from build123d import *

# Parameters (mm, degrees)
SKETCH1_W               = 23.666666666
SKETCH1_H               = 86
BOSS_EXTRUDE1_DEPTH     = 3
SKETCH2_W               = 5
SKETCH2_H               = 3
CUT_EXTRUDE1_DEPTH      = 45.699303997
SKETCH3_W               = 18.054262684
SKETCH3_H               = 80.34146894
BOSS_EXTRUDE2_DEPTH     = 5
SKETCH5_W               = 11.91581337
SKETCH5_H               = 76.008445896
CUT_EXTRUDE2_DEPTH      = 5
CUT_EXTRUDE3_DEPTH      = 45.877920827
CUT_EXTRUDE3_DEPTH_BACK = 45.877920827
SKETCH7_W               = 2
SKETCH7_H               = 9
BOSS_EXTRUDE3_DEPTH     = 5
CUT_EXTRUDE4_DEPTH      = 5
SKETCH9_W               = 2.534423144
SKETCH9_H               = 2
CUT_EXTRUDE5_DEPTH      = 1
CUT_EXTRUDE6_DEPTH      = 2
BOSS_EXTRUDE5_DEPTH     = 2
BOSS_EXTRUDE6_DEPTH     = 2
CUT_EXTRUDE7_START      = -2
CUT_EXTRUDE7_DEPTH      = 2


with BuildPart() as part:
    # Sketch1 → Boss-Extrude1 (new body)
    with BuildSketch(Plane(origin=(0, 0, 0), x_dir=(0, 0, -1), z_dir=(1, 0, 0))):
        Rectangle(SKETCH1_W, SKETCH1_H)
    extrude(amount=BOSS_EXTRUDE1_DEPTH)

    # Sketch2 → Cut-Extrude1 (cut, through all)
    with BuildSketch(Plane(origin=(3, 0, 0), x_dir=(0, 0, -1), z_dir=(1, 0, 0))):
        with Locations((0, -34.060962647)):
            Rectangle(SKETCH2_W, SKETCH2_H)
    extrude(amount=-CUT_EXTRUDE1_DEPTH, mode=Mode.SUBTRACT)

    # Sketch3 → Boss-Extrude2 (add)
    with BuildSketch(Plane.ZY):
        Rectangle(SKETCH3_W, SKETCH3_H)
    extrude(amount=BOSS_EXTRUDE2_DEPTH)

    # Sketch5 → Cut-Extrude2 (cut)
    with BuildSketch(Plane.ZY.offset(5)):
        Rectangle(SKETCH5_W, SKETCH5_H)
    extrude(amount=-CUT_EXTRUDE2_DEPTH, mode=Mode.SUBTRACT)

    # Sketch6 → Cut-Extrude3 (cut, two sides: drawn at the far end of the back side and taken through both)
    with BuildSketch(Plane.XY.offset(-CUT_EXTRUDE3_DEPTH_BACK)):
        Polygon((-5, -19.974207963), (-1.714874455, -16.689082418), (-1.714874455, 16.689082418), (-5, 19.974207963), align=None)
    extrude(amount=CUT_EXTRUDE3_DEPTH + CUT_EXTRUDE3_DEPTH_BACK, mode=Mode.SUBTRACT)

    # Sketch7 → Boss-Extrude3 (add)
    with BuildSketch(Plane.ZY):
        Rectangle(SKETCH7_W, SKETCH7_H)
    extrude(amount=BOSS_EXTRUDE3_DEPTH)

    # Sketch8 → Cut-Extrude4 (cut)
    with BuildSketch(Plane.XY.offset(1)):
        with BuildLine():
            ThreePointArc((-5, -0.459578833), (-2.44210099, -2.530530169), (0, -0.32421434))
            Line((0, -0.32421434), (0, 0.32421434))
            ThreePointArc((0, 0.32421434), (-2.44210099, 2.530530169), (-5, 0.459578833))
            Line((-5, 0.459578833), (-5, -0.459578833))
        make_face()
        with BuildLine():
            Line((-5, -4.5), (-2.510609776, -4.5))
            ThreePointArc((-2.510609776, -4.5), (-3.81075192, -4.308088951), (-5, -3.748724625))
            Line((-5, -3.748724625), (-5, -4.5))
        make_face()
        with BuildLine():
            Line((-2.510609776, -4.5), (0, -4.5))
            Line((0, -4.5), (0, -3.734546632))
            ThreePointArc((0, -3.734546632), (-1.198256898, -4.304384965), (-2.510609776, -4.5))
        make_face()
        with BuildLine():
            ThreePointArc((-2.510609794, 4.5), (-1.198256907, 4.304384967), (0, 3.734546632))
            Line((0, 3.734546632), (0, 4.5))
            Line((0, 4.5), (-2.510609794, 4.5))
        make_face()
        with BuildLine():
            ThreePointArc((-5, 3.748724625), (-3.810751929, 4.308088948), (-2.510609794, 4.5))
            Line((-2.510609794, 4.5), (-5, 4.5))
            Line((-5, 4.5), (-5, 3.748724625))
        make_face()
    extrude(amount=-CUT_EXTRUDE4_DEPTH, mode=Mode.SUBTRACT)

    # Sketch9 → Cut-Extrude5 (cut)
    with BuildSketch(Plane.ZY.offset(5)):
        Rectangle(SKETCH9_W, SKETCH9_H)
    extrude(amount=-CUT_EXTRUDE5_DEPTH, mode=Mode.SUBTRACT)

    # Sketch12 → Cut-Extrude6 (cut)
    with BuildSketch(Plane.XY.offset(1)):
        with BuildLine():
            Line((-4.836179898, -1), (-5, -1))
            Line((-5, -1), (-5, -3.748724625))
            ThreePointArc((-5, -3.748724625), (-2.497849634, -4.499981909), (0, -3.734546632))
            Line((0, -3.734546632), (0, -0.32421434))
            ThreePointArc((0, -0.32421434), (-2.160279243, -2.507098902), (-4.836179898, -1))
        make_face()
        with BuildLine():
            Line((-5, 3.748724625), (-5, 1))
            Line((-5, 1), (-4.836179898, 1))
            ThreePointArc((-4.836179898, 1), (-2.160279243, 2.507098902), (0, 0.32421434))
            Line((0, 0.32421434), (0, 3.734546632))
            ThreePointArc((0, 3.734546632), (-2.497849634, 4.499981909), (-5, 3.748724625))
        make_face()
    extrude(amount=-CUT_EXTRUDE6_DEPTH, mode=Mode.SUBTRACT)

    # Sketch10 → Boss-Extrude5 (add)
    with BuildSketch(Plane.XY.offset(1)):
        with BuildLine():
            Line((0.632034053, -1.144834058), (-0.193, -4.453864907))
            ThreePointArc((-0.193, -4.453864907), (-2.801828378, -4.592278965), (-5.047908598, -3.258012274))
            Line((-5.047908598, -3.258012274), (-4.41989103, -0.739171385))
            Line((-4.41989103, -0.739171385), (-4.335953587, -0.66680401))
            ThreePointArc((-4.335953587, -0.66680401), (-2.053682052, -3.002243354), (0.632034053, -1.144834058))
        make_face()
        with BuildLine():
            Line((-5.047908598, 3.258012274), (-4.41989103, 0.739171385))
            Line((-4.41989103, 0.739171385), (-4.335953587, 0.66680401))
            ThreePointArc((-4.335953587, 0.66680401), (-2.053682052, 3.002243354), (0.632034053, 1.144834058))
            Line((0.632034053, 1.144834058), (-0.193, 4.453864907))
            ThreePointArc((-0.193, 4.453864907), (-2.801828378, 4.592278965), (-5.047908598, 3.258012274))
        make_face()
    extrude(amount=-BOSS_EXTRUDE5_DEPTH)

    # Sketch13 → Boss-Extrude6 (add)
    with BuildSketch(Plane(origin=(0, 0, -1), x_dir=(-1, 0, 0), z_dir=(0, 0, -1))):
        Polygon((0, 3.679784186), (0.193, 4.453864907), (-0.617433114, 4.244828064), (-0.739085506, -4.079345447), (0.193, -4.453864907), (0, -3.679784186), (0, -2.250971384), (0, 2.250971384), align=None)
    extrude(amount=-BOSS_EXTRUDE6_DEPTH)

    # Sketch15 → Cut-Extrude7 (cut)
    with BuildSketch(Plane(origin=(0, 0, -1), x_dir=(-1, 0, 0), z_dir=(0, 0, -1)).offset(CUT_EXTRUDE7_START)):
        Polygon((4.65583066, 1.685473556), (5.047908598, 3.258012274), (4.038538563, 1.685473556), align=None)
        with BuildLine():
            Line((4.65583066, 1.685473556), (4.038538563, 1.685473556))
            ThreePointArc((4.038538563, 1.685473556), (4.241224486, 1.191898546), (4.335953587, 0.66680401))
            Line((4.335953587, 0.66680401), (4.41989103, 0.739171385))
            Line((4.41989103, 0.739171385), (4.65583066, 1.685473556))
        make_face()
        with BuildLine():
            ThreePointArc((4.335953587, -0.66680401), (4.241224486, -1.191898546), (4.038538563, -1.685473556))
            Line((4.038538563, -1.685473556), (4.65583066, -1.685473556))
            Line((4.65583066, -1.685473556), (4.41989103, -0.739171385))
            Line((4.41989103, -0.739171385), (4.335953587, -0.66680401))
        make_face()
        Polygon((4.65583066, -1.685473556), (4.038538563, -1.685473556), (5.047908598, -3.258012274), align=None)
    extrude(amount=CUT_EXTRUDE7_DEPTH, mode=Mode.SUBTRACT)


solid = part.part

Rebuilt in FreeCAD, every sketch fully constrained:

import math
import FreeCAD as App
import Part
import Sketcher

V = App.Vector
Q = App.Units.Quantity


def add_polygon(sketch, points):
    """Adds a closed chain of lines whose ends are joined by coincident constraints."""
    first, n = sketch.GeometryCount, len(points)
    for a, b in zip(points, points[1:] + points[:1]):
        sketch.addGeometry(Part.LineSegment(App.Vector(*a, 0), App.Vector(*b, 0)), False)
    for i in range(n):
        sketch.addConstraint(Sketcher.Constraint("Coincident", first + i, 2, first + (i + 1) % n, 1))

doc = App.newDocument("Part")
body = doc.addObject("PartDesign::Body", "Body")

sketch1 = doc.addObject("Sketcher::SketchObject", "Sketch")
body.addObject(sketch1)
sketch1.AttachmentSupport = (doc.YZ_Plane, [""])
sketch1.MapMode = "FlatFace"
add_polygon(sketch1, [(43, 12), (-43, 12), (-43, -12), (43, -12)])
sketch1.addConstraint([
    Sketcher.Constraint("Horizontal", 0),
    Sketcher.Constraint("Vertical", 1),
    Sketcher.Constraint("Horizontal", 2),
    Sketcher.Constraint("Vertical", 3),
    Sketcher.Constraint("Symmetric", 0, 2, 2, 2, -1, 1),
    Sketcher.Constraint("DistanceX", 0, 2, 0, 1, 86.0),
    Sketcher.Constraint("DistanceY", 1, 2, 1, 1, 23.666667),
])
pad1 = doc.addObject("PartDesign::Pad", "Pad")
body.addObject(pad1)
pad1.Profile = sketch1
pad1.Length = 3

sketch2 = doc.addObject("Sketcher::SketchObject", "Sketch001")
body.addObject(sketch2)
sketch2.AttachmentSupport = (doc.YZ_Plane, [""])
sketch2.MapMode = "FlatFace"
sketch2.AttachmentOffset = App.Placement(V(0, 0, 3), App.Rotation())
add_polygon(sketch2, [(-32.6, 2.5), (-35.6, 2.5), (-35.6, -2.5), (-32.6, -2.5)])
sketch2.addConstraint([
    Sketcher.Constraint("Horizontal", 0),
    Sketcher.Constraint("Vertical", 1),
    Sketcher.Constraint("Horizontal", 2),
    Sketcher.Constraint("Vertical", 3),
    Sketcher.Constraint("DistanceX", 0, 2, 0, 1, 3.0),
    Sketcher.Constraint("DistanceY", 1, 2, 1, 1, 5.0),
    Sketcher.Constraint("DistanceY", -1, 1, 0, 2, 2.5),
    Sketcher.Constraint("DistanceX", 0, 2, -1, 1, 35.560963),
])
pocket1 = doc.addObject("PartDesign::Pocket", "Pocket")
body.addObject(pocket1)
pocket1.Profile = sketch2
pocket1.Type = "ThroughAll"

sketch3 = doc.addObject("Sketcher::SketchObject", "Sketch002")
body.addObject(sketch3)
sketch3.AttachmentSupport = (doc.YZ_Plane, [""])
sketch3.MapMode = "FlatFace"
add_polygon(sketch3, [(40, -9), (-40, -9), (-40, 9), (40, 9)])
sketch3.addConstraint([
    Sketcher.Constraint("Horizontal", 0),
    Sketcher.Constraint("Vertical", 1),
    Sketcher.Constraint("Horizontal", 2),
    Sketcher.Constraint("Vertical", 3),
    Sketcher.Constraint("Symmetric", 0, 2, 2, 2, -1, 1),
    Sketcher.Constraint("DistanceX", 0, 2, 0, 1, 80.341469),
    Sketcher.Constraint("DistanceY", 1, 1, 1, 2, 18.054263),
])
pad2 = doc.addObject("PartDesign::Pad", "Pad001")
body.addObject(pad2)
pad2.Profile = sketch3
pad2.Length = 5
pad2.Reversed = True

sketch4 = doc.addObject("Sketcher::SketchObject", "Sketch003")
body.addObject(sketch4)
sketch4.AttachmentSupport = (doc.YZ_Plane, [""])
sketch4.MapMode = "FlatFace"
sketch4.AttachmentOffset = App.Placement(V(0, 0, -5), App.Rotation())
add_polygon(sketch4, [(38, -6), (-38, -6), (-38, 6), (38, 6)])
sketch4.addConstraint([
    Sketcher.Constraint("Horizontal", 0),
    Sketcher.Constraint("Vertical", 1),
    Sketcher.Constraint("Horizontal", 2),
    Sketcher.Constraint("Vertical", 3),
    Sketcher.Constraint("Symmetric", 0, 2, 2, 2, -1, 1),
    Sketcher.Constraint("DistanceX", 0, 2, 0, 1, 76.008446),
    Sketcher.Constraint("DistanceY", 1, 1, 1, 2, 11.915813),
])
pocket2 = doc.addObject("PartDesign::Pocket", "Pocket001")
body.addObject(pocket2)
pocket2.Profile = sketch4
pocket2.Length = 5
pocket2.Reversed = True

sketch5 = doc.addObject("Sketcher::SketchObject", "Sketch004")
body.addObject(sketch5)
sketch5.AttachmentSupport = (doc.XY_Plane, [""])
sketch5.MapMode = "FlatFace"
add_polygon(sketch5, [(-5, -20), (-1.7, -16.7), (-1.7, 16.7), (-5, 20)])
sketch5.addConstraint([
    Sketcher.Constraint("Vertical", 1),
    Sketcher.Constraint("Vertical", 3),
    Sketcher.Constraint("Perpendicular", 0, 2),
    Sketcher.Constraint("Equal", 0, 2),
    Sketcher.Constraint("DistanceX", 2, 2, -1, 1, 5.0),
    Sketcher.Constraint("Distance", 0, 4.645869),
    Sketcher.Constraint("DistanceY", 1, 1, 1, 2, 33.378165),
    Sketcher.Constraint("DistanceY", 0, 2, -1, 1, 16.689082),
])
pocket3 = doc.addObject("PartDesign::Pocket", "Pocket002")
body.addObject(pocket3)
pocket3.Profile = sketch5
pocket3.Type = "ThroughAll"
pocket3.Midplane = True

sketch6 = doc.addObject("Sketcher::SketchObject", "Sketch005")
body.addObject(sketch6)
sketch6.AttachmentSupport = (doc.YZ_Plane, [""])
sketch6.MapMode = "FlatFace"
add_polygon(sketch6, [(4.5, -1), (-4.5, -1), (-4.5, 1), (4.5, 1)])
sketch6.addConstraint([
    Sketcher.Constraint("Horizontal", 0),
    Sketcher.Constraint("Vertical", 1),
    Sketcher.Constraint("Horizontal", 2),
    Sketcher.Constraint("Vertical", 3),
    Sketcher.Constraint("Symmetric", 0, 2, 2, 2, -1, 1),
    Sketcher.Constraint("DistanceX", 0, 2, 0, 1, 9.0),
    Sketcher.Constraint("DistanceY", 1, 1, 1, 2, 2.0),
])
pad3 = doc.addObject("PartDesign::Pad", "Pad002")
body.addObject(pad3)
pad3.Profile = sketch6
pad3.Length = 5
pad3.Reversed = True

sketch7 = doc.addObject("Sketcher::SketchObject", "Sketch006")
body.addObject(sketch7)
sketch7.AttachmentSupport = (doc.XY_Plane, [""])
sketch7.MapMode = "FlatFace"
sketch7.AttachmentOffset = App.Placement(V(0, 0, 1), App.Rotation())
sketch7.addGeometry([
    Part.ArcOfCircle(Part.Circle(V(-2.5, 0, 0), V(0, 0, 1), 2.5), math.radians(-170), math.radians(-7)),
    Part.LineSegment(V(0, -0.3, 0), V(0, 0.3, 0)),
    Part.ArcOfCircle(Part.Circle(V(-2.5, 0, 0), V(0, 0, 1), 2.5), math.radians(7), math.radians(170)),
    Part.LineSegment(V(-5, 0.5, 0), V(-5, -0.5, 0)),
    Part.LineSegment(V(-5, -4.5, 0), V(-2.5, -4.5, 0)),
    Part.ArcOfCircle(Part.Circle(V(-2.5, 0, 0), V(0, 0, 1), 4.5), math.radians(-124), math.radians(-90)),
    Part.LineSegment(V(-5, -3.7, 0), V(-5, -4.5, 0)),
    Part.LineSegment(V(-2.5, -4.5, 0), V(0, -4.5, 0)),
    Part.LineSegment(V(0, -4.5, 0), V(0, -3.7, 0)),
    Part.ArcOfCircle(Part.Circle(V(-2.5, 0, 0), V(0, 0, 1), 4.5), math.radians(-90), math.radians(-56)),
    Part.ArcOfCircle(Part.Circle(V(-2.5, 0, 0), V(0, 0, 1), 4.5), math.radians(56), math.radians(90)),
    Part.LineSegment(V(0, 3.7, 0), V(0, 4.5, 0)),
    Part.LineSegment(V(0, 4.5, 0), V(-2.5, 4.5, 0)),
    Part.ArcOfCircle(Part.Circle(V(-2.5, 0, 0), V(0, 0, 1), 4.5), math.radians(90), math.radians(124)),
    Part.LineSegment(V(-2.5, 4.5, 0), V(-5, 4.5, 0)),
    Part.LineSegment(V(-5, 4.5, 0), V(-5, 3.7, 0)),
], False)
sketch7.addConstraint([
    Sketcher.Constraint("Coincident", 0, 2, 1, 1),
    Sketcher.Constraint("Coincident", 1, 2, 2, 1),
    Sketcher.Constraint("Coincident", 2, 2, 3, 1),
    Sketcher.Constraint("Coincident", 3, 2, 0, 1),
    Sketcher.Constraint("Tangent", 4, 2, 5, 2),
    Sketcher.Constraint("Coincident", 5, 1, 6, 1),
    Sketcher.Constraint("Coincident", 6, 2, 4, 1),
    Sketcher.Constraint("Coincident", 7, 2, 8, 1),
    Sketcher.Constraint("Coincident", 8, 2, 9, 2),
    Sketcher.Constraint("Tangent", 9, 1, 7, 1),
    Sketcher.Constraint("Coincident", 10, 1, 11, 1),
    Sketcher.Constraint("Coincident", 11, 2, 12, 1),
    Sketcher.Constraint("Tangent", 12, 2, 10, 2),
    Sketcher.Constraint("Tangent", 13, 1, 14, 1),
    Sketcher.Constraint("Coincident", 14, 2, 15, 1),
    Sketcher.Constraint("Coincident", 15, 2, 13, 2),
    Sketcher.Constraint("Vertical", 1),
    Sketcher.Constraint("Vertical", 3),
    Sketcher.Constraint("Horizontal", 4),
    Sketcher.Constraint("Vertical", 6),
    Sketcher.Constraint("Horizontal", 7),
    Sketcher.Constraint("Vertical", 8),
    Sketcher.Constraint("Vertical", 11),
    Sketcher.Constraint("Horizontal", 12),
    Sketcher.Constraint("Horizontal", 14),
    Sketcher.Constraint("Vertical", 15),
    Sketcher.Constraint("Coincident", 2, 3, 0, 3),
    Sketcher.Constraint("Coincident", 5, 3, 0, 3),
    Sketcher.Constraint("Coincident", 9, 3, 0, 3),
    Sketcher.Constraint("Coincident", 10, 3, 0, 3),
    Sketcher.Constraint("Coincident", 13, 3, 0, 3),
    Sketcher.Constraint("Equal", 0, 2),
    Sketcher.Constraint("Equal", 5, 9),
    Sketcher.Constraint("Equal", 9, 10),
    Sketcher.Constraint("Equal", 10, 13),
    Sketcher.Constraint("Symmetric", 0, 2, 1, 2, -1, 1),
    Sketcher.Constraint("Symmetric", 8, 2, 10, 1, -1, 1),
    Sketcher.Constraint("Vertical", 3, 2, 5, 1),
    Sketcher.Constraint("Vertical", 6, 2, 14, 2),
    Sketcher.Constraint("Radius", 5, 4.5),
    Sketcher.Constraint("DistanceX", 2, 2, -1, 1, 5.0),
    Sketcher.Constraint("Radius", 0, 2.531457),
    Sketcher.Constraint("DistanceX", 4, 1, 4, 2, 2.48939),
])
pocket4 = doc.addObject("PartDesign::Pocket", "Pocket003")
body.addObject(pocket4)
pocket4.Profile = sketch7
pocket4.Length = 5

sketch8 = doc.addObject("Sketcher::SketchObject", "Sketch007")
body.addObject(sketch8)
sketch8.AttachmentSupport = (doc.YZ_Plane, [""])
sketch8.MapMode = "FlatFace"
sketch8.AttachmentOffset = App.Placement(V(0, 0, -5), App.Rotation())
add_polygon(sketch8, [(1, -1.3), (-1, -1.3), (-1, 1.3), (1, 1.3)])
sketch8.addConstraint([
    Sketcher.Constraint("Horizontal", 0),
    Sketcher.Constraint("Vertical", 1),
    Sketcher.Constraint("Horizontal", 2),
    Sketcher.Constraint("Vertical", 3),
    Sketcher.Constraint("Symmetric", 0, 2, 2, 2, -1, 1),
    Sketcher.Constraint("DistanceX", 0, 2, 0, 1, 2.0),
    Sketcher.Constraint("DistanceY", 1, 1, 1, 2, 2.534423),
])
pocket5 = doc.addObject("PartDesign::Pocket", "Pocket004")
body.addObject(pocket5)
pocket5.Profile = sketch8
pocket5.Length = 1
pocket5.Reversed = True

sketch9 = doc.addObject("Sketcher::SketchObject", "Sketch008")
body.addObject(sketch9)
sketch9.AttachmentSupport = (doc.XY_Plane, [""])
sketch9.MapMode = "FlatFace"
sketch9.AttachmentOffset = App.Placement(V(0, 0, 1), App.Rotation())
sketch9.addGeometry([
    Part.LineSegment(V(-4.84, -1, 0), V(-5, -1, 0)),
    Part.LineSegment(V(-5, -1, 0), V(-5, -3.75, 0)),
    Part.ArcOfCircle(Part.Circle(V(-2.51, 0, 0), V(0, 0, 1), 4.5), math.radians(-124), math.radians(-56)),
    Part.LineSegment(V(0, -3.73, 0), V(0, -0.32, 0)),
    Part.ArcOfCircle(Part.Circle(V(-2.51, 0, 0), V(0, 0, 1), 2.53), math.radians(-157), math.radians(-7)),
    Part.LineSegment(V(-5, 3.75, 0), V(-5, 1, 0)),
    Part.LineSegment(V(-5, 1, 0), V(-4.84, 1, 0)),
    Part.ArcOfCircle(Part.Circle(V(-2.51, 0, 0), V(0, 0, 1), 2.53), math.radians(7), math.radians(157)),
    Part.LineSegment(V(0, 0.32, 0), V(0, 3.73, 0)),
    Part.ArcOfCircle(Part.Circle(V(-2.51, 0, 0), V(0, 0, 1), 4.5), math.radians(56), math.radians(124)),
], False)
sketch9.addConstraint([
    Sketcher.Constraint("Coincident", 0, 2, 1, 1),
    Sketcher.Constraint("Coincident", 1, 2, 2, 1),
    Sketcher.Constraint("Coincident", 2, 2, 3, 1),
    Sketcher.Constraint("Coincident", 3, 2, 4, 2),
    Sketcher.Constraint("Coincident", 4, 1, 0, 1),
    Sketcher.Constraint("Coincident", 5, 2, 6, 1),
    Sketcher.Constraint("Coincident", 6, 2, 7, 2),
    Sketcher.Constraint("Coincident", 7, 1, 8, 1),
    Sketcher.Constraint("Coincident", 8, 2, 9, 1),
    Sketcher.Constraint("Coincident", 9, 2, 5, 1),
    Sketcher.Constraint("Horizontal", 0),
    Sketcher.Constraint("Vertical", 1),
    Sketcher.Constraint("Vertical", 3),
    Sketcher.Constraint("Vertical", 5),
    Sketcher.Constraint("Horizontal", 6),
    Sketcher.Constraint("Vertical", 8),
    Sketcher.Constraint("Coincident", 4, 3, 2, 3),
    Sketcher.Constraint("Coincident", 7, 3, 2, 3),
    Sketcher.Constraint("Coincident", 9, 3, 2, 3),
    Sketcher.Constraint("Equal", 4, 7),
    Sketcher.Constraint("Equal", 2, 9),
    Sketcher.Constraint("Symmetric", 3, 2, 7, 1, -1, 1),
    Sketcher.Constraint("Symmetric", 0, 2, 5, 2, -1),
    Sketcher.Constraint("PointOnObject", 2, 3, -1),
    Sketcher.Constraint("Radius", 2, 4.5),
    Sketcher.Constraint("DistanceX", 0, 2, -1, 1, 5.0),
    Sketcher.Constraint("DistanceY", 0, 2, -1, 1, 1.0),
    Sketcher.Constraint("Radius", 4, 2.531457),
    Sketcher.Constraint("DistanceX", 0, 2, 0, 1, 0.16382),
])
pocket6 = doc.addObject("PartDesign::Pocket", "Pocket005")
body.addObject(pocket6)
pocket6.Profile = sketch9
pocket6.Length = 2

sketch10 = doc.addObject("Sketcher::SketchObject", "Sketch009")
body.addObject(sketch10)
sketch10.AttachmentSupport = (doc.XY_Plane, [""])
sketch10.MapMode = "FlatFace"
sketch10.AttachmentOffset = App.Placement(V(0, 0, 1), App.Rotation())
sketch10.addGeometry([
    Part.LineSegment(V(-0.19, -4.45, 0), V(0.63, -1.14, 0)),
    Part.ArcOfCircle(Part.Circle(V(-1.81, -0.48, 0), V(0, 0, 1), 2.53), math.radians(-176), math.radians(-15)),
    Part.LineSegment(V(-4.34, -0.67, 0), V(-4.42, -0.74, 0)),
    Part.LineSegment(V(-4.42, -0.74, 0), V(-5.05, -3.26, 0)),
    Part.ArcOfCircle(Part.Circle(V(-1.73, -0.22, 0), V(0, 0, 1), 4.5), math.radians(-138), math.radians(-70)),
    Part.LineSegment(V(-5.05, 3.26, 0), V(-4.42, 0.74, 0)),
    Part.LineSegment(V(-4.42, 0.74, 0), V(-4.34, 0.67, 0)),
    Part.ArcOfCircle(Part.Circle(V(-1.81, 0.48, 0), V(0, 0, 1), 2.53), math.radians(15), math.radians(176)),
    Part.LineSegment(V(0.63, 1.14, 0), V(-0.19, 4.45, 0)),
    Part.ArcOfCircle(Part.Circle(V(-1.73, 0.22, 0), V(0, 0, 1), 4.5), math.radians(70), math.radians(138)),
], False)
sketch10.addConstraint([
    Sketcher.Constraint("Coincident", 0, 2, 1, 2),
    Sketcher.Constraint("Coincident", 1, 1, 2, 1),
    Sketcher.Constraint("Coincident", 2, 2, 3, 1),
    Sketcher.Constraint("Coincident", 3, 2, 4, 1),
    Sketcher.Constraint("Coincident", 4, 2, 0, 1),
    Sketcher.Constraint("Coincident", 5, 2, 6, 1),
    Sketcher.Constraint("Coincident", 6, 2, 7, 2),
    Sketcher.Constraint("Coincident", 7, 1, 8, 1),
    Sketcher.Constraint("Coincident", 8, 2, 9, 1),
    Sketcher.Constraint("Coincident", 9, 2, 5, 1),
    Sketcher.Constraint("Equal", 1, 7),
    Sketcher.Constraint("Equal", 4, 9),
    Sketcher.Constraint("Symmetric", 1, 3, 7, 3, -1),
    Sketcher.Constraint("Symmetric", 4, 3, 9, 3, -1),
    Sketcher.Constraint("Symmetric", 2, 2, 5, 2, -1),
    Sketcher.Constraint("Parallel", 0, 3),
    Sketcher.Constraint("Parallel", 5, 8),
    Sketcher.Constraint("Vertical", 1, 1, 6, 2),
    Sketcher.Constraint("Vertical", 0, 2, 7, 1),
    Sketcher.Constraint("Vertical", 4, 2, 8, 2),
    Sketcher.Constraint("Radius", 4, 4.5),
    Sketcher.Constraint("Angle", 0, Q("76 deg")),
    Sketcher.Constraint("DistanceX", 4, 2, -1, 1, 0.193),
    Sketcher.Constraint("Radius", 1, 2.531457),
    Sketcher.Constraint("DistanceX", 4, 3, 0, 2, 2.357599),
    Sketcher.Constraint("Distance", 3, 2.595952),
    Sketcher.Constraint("DistanceX", 1, 3, -1, 1, 1.81122),
    Sketcher.Constraint("DistanceY", 4, 3, -1, 1, 0.222879),
    Sketcher.Constraint("DistanceX", 2, 2, -1, 1, 4.419891),
    Sketcher.Constraint("DistanceY", 2, 2, -1, 1, 0.739171),
    Sketcher.Constraint("DistanceY", 1, 1, 1, 3, 0.18438),
])
pad4 = doc.addObject("PartDesign::Pad", "Pad003")
body.addObject(pad4)
pad4.Profile = sketch10
pad4.Length = 2
pad4.Reversed = True

sketch11 = doc.addObject("Sketcher::SketchObject", "Sketch010")
body.addObject(sketch11)
sketch11.AttachmentSupport = (doc.XY_Plane, [""])
sketch11.MapMode = "FlatFace"
sketch11.AttachmentOffset = App.Placement(V(0, 0, -1), App.Rotation())
add_polygon(sketch11, [(0, 3.7), (-0.2, 4.5), (0.6, 4.2), (0.7, -4.1), (-0.2, -4.5), (0, -3.7)])
sketch11.addConstraint([
    Sketcher.Constraint("Vertical", 5),
    Sketcher.Constraint("Symmetric", 4, 2, 5, 2, -1, 1),
    Sketcher.Constraint("Symmetric", 0, 2, 3, 2, -1),
    Sketcher.Constraint("Angle", 0, Q("104 deg")),
    Sketcher.Constraint("DistanceX", 0, 2, -1, 1, 0.193),
    Sketcher.Constraint("DistanceY", 5, 1, 5, 2, 7.359568),
    Sketcher.Constraint("DistanceY", -1, 1, 1, 2, 4.244828),
    Sketcher.Constraint("DistanceY", 2, 2, 0, 2, 8.53321),
    Sketcher.Constraint("Distance", 1, 0.836958),
    Sketcher.Constraint("Distance", 2, 8.325062),
])
pad5 = doc.addObject("PartDesign::Pad", "Pad004")
body.addObject(pad5)
pad5.Profile = sketch11
pad5.Length = 2

sketch12 = doc.addObject("Sketcher::SketchObject", "Sketch011")
body.addObject(sketch12)
sketch12.AttachmentSupport = (doc.XY_Plane, [""])
sketch12.MapMode = "FlatFace"
sketch12.AttachmentOffset = App.Placement(V(0, 0, 1), App.Rotation())
sketch12.addGeometry([
    Part.LineSegment(V(-4.66, 1.69, 0), V(-5.05, 3.26, 0)),
    Part.LineSegment(V(-5.05, 3.26, 0), V(-4.04, 1.69, 0)),
    Part.ArcOfCircle(Part.Circle(V(-1.81, 0.48, 0), V(0, 0, 1), 2.53), math.radians(152), math.radians(176)),
    Part.LineSegment(V(-4.34, 0.67, 0), V(-4.42, 0.74, 0)),
    Part.LineSegment(V(-4.42, 0.74, 0), V(-4.66, 1.69, 0)),
    Part.ArcOfCircle(Part.Circle(V(-1.81, -0.48, 0), V(0, 0, 1), 2.53), math.radians(-176), math.radians(-152)),
    Part.LineSegment(V(-4.04, -1.69, 0), V(-5.05, -3.26, 0)),
    Part.LineSegment(V(-5.05, -3.26, 0), V(-4.66, -1.69, 0)),
    Part.LineSegment(V(-4.66, -1.69, 0), V(-4.42, -0.74, 0)),
    Part.LineSegment(V(-4.42, -0.74, 0), V(-4.34, -0.67, 0)),
], False)
sketch12.addConstraint([
    Sketcher.Constraint("Coincident", 0, 2, 1, 1),
    Sketcher.Constraint("Coincident", 1, 2, 2, 1),
    Sketcher.Constraint("Coincident", 2, 2, 3, 1),
    Sketcher.Constraint("Coincident", 3, 2, 4, 1),
    Sketcher.Constraint("Coincident", 4, 2, 0, 1),
    Sketcher.Constraint("Coincident", 5, 2, 6, 1),
    Sketcher.Constraint("Coincident", 6, 2, 7, 1),
    Sketcher.Constraint("Coincident", 7, 2, 8, 1),
    Sketcher.Constraint("Coincident", 8, 2, 9, 1),
    Sketcher.Constraint("Coincident", 9, 2, 5, 1),
    Sketcher.Constraint("Equal", 2, 5),
    Sketcher.Constraint("Symmetric", 2, 3, 5, 3, -1),
    Sketcher.Constraint("Symmetric", 0, 2, 6, 2, -1),
    Sketcher.Constraint("Symmetric", 4, 2, 7, 2, -1),
    Sketcher.Constraint("Symmetric", 3, 2, 8, 2, -1),
    Sketcher.Constraint("Parallel", 0, 4),
    Sketcher.Constraint("Horizontal", 1, 2, 4, 2),
    Sketcher.Constraint("Horizontal", 5, 2, 7, 2),
    Sketcher.Constraint("Vertical", 2, 2, 9, 2),
    Sketcher.Constraint("Angle", 0, Q("104 deg")),
    Sketcher.Constraint("Radius", 2, 2.531457),
    Sketcher.Constraint("Distance", 0, 1.62068),
    Sketcher.Constraint("Distance", 1, 1.868611),
    Sketcher.Constraint("Distance", 4, 0.975272),
    Sketcher.Constraint("DistanceX", 2, 3, -1, 1, 1.81122),
    Sketcher.Constraint("DistanceX", 0, 2, -1, 1, 5.047909),
    Sketcher.Constraint("DistanceY", -1, 1, 3, 2, 0.739171),
    Sketcher.Constraint("DistanceY", 2, 2, 1, 2, 1.01867),
])
pocket7 = doc.addObject("PartDesign::Pocket", "Pocket006")
body.addObject(pocket7)
pocket7.Profile = sketch12
pocket7.Length = 2

doc.recompute()
